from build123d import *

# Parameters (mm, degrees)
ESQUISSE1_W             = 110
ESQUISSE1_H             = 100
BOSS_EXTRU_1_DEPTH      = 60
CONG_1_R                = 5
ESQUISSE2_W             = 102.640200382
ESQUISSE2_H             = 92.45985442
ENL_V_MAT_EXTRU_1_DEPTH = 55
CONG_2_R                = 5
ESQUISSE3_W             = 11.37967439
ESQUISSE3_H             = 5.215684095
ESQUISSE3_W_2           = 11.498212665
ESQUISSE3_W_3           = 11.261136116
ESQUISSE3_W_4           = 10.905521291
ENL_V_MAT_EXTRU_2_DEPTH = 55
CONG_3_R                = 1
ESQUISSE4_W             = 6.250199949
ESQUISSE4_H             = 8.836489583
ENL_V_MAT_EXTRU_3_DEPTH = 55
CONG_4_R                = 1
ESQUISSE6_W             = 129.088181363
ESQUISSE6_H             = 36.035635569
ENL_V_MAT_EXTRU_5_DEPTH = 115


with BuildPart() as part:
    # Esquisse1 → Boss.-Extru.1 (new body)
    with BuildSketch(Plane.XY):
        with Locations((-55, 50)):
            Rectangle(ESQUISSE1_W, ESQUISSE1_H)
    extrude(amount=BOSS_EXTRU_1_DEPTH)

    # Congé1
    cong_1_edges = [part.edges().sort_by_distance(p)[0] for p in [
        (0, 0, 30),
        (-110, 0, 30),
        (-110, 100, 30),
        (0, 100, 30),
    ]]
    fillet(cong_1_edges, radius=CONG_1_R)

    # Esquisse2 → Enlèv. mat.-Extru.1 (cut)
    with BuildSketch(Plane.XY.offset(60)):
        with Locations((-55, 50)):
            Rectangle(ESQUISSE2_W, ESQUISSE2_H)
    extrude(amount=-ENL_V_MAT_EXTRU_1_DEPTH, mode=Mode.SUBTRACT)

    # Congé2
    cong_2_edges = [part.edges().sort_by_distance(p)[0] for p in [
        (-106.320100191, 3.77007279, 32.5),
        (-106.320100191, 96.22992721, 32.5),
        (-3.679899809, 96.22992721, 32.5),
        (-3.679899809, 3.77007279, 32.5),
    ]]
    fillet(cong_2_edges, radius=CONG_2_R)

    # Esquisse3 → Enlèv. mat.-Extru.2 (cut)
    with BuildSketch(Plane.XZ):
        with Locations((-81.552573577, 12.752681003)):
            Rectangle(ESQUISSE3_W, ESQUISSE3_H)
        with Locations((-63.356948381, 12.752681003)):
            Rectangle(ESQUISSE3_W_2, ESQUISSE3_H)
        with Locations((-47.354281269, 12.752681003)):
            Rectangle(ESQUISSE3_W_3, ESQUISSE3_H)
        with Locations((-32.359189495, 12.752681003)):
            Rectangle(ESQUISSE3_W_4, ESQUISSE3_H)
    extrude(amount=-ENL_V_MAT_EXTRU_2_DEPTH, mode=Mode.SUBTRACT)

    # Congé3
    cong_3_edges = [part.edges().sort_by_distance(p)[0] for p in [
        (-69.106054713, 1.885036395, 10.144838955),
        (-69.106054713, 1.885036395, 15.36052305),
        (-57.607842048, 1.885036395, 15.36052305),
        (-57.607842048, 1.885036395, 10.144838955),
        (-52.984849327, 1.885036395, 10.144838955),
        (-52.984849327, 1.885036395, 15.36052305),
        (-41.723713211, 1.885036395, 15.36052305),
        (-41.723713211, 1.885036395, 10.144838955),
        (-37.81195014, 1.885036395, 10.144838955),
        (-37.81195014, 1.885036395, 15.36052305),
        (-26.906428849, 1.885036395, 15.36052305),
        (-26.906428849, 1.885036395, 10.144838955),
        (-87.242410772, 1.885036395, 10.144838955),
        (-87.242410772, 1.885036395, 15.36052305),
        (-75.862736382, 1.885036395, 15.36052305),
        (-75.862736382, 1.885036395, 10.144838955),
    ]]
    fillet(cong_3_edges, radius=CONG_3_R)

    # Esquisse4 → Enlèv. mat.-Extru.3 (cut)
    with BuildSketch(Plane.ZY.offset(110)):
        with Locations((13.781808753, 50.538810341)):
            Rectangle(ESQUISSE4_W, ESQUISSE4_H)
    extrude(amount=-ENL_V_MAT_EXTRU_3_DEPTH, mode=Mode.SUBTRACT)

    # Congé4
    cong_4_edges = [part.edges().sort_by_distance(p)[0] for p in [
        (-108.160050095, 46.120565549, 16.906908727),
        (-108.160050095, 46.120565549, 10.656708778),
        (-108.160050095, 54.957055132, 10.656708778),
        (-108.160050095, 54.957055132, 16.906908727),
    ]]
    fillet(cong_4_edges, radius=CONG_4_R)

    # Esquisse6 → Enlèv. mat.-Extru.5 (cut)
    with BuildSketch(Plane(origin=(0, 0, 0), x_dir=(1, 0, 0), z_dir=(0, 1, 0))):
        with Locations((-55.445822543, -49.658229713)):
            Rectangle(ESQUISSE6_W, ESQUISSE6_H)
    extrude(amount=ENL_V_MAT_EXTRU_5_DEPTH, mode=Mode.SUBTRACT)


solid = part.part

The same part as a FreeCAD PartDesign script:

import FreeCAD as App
import Part
import Sketcher
Q = App.Units.Quantity


def edges_at(feature, points):
    """Names of the edges that pass closest to the given points."""
    edges = feature.Shape.Edges
    near = lambda p: min(range(len(edges)), key=lambda i: edges[i].distToShape(Part.Vertex(*p))[0])
    return sorted({f"Edge{near(p) + 1}" for p in points})


def add_polygon(sketch, points):
    """Adds a closed chain of lines whose ends are joined by coincident constraints."""
    first, n = sketch.GeometryCount, len(points)
    for a, b in zip(points, points[1:] + points[:1]):
        sketch.addGeometry(Part.LineSegment(App.Vector(*a, 0), App.Vector(*b, 0)), False)
    for i in range(n):
        sketch.addConstraint(Sketcher.Constraint("Coincident", first + i, 2, first + (i + 1) % n, 1))

doc = App.newDocument("Part")
body = doc.addObject("PartDesign::Body", "Body")

# Sketch on XY plane
sketch1 = body.newObject("Sketcher::SketchObject", "Sketch")
sketch1.AttachmentSupport = (doc.getObject("XY_Plane"), [""])
sketch1.MapMode = "FlatFace"
add_polygon(sketch1, [(-110, 100), (-110, 0), (0, 0), (0, 100)])  # lines 0-3
sketch1.addConstraint(Sketcher.Constraint("Vertical", 0))
sketch1.addConstraint(Sketcher.Constraint("Horizontal", 1))
sketch1.addConstraint(Sketcher.Constraint("Vertical", 2))
sketch1.addConstraint(Sketcher.Constraint("Horizontal", 3))
sketch1.addConstraint(Sketcher.Constraint("Coincident", 1, 2, -1, 1))
sketch1.addConstraint(Sketcher.Constraint("DistanceX", 1, 1, 1, 2, Q("110 mm")))
sketch1.addConstraint(Sketcher.Constraint("DistanceY", 0, 2, 0, 1, Q("100 mm")))
pad1 = body.newObject("PartDesign::Pad", "Pad")
pad1.Profile = sketch1
pad1.Length = 60
doc.recompute()

fillet = body.newObject("PartDesign::Fillet", "Fillet")
fillet.Base = (pad1, edges_at(pad1, [
    (0, 0, 30),
    (-110, 0, 30),
    (-110, 100, 30),
    (0, 100, 30),
]))
fillet.Radius = 5

# Sketch on XY plane
sketch2 = body.newObject("Sketcher::SketchObject", "Sketch001")
sketch2.AttachmentSupport = (doc.getObject("XY_Plane"), [""])
sketch2.MapMode = "FlatFace"
sketch2.AttachmentOffset = App.Placement(App.Vector(0, 0, 60), App.Rotation())
add_polygon(sketch2, [(-106, 96), (-106, 4), (-4, 4), (-4, 96)])  # lines 0-3
sketch2.addConstraint(Sketcher.Constraint("Vertical", 0))
sketch2.addConstraint(Sketcher.Constraint("Horizontal", 1))
sketch2.addConstraint(Sketcher.Constraint("Vertical", 2))
sketch2.addConstraint(Sketcher.Constraint("Horizontal", 3))
sketch2.addConstraint(Sketcher.Constraint("DistanceX", 1, 1, 1, 2, Q("102.6402 mm")))
sketch2.addConstraint(Sketcher.Constraint("DistanceX", 0, 2, -1, 1, Q("106.3201 mm")))
sketch2.addConstraint(Sketcher.Constraint("DistanceY", 0, 2, 0, 1, Q("92.459854 mm")))
sketch2.addConstraint(Sketcher.Constraint("DistanceY", -1, 1, 0, 2, Q("3.770073 mm")))
pocket1 = body.newObject("PartDesign::Pocket", "Pocket")
pocket1.Profile = sketch2
pocket1.Length = 55
doc.recompute()

fillet2 = body.newObject("PartDesign::Fillet", "Fillet001")
fillet2.Base = (pocket1, edges_at(pocket1, [
    (-106.32, 3.77, 32.5),
    (-106.32, 96.23, 32.5),
    (-3.68, 96.23, 32.5),
    (-3.68, 3.77, 32.5),
]))
fillet2.Radius = 5

# Sketch on XZ plane
sketch3 = body.newObject("Sketcher::SketchObject", "Sketch002")
sketch3.AttachmentSupport = (doc.getObject("XZ_Plane"), [""])
sketch3.MapMode = "FlatFace"
add_polygon(sketch3, [(-87, 15), (-87, 10), (-76, 10), (-76, 15)])  # lines 0-3
add_polygon(sketch3, [(-69, 15), (-69, 10), (-58, 10), (-58, 15)])  # lines 4-7
add_polygon(sketch3, [(-53, 15), (-53, 10), (-42, 10), (-42, 15)])  # lines 8-11
add_polygon(sketch3, [(-38, 15), (-38, 10), (-27, 10), (-27, 15)])  # lines 12-15
sketch3.addConstraint(Sketcher.Constraint("Vertical", 0))
sketch3.addConstraint(Sketcher.Constraint("Horizontal", 1))
sketch3.addConstraint(Sketcher.Constraint("Vertical", 2))
sketch3.addConstraint(Sketcher.Constraint("Horizontal", 3))
sketch3.addConstraint(Sketcher.Constraint("Vertical", 4))
sketch3.addConstraint(Sketcher.Constraint("Horizontal", 5))
sketch3.addConstraint(Sketcher.Constraint("Vertical", 6))
sketch3.addConstraint(Sketcher.Constraint("Horizontal", 7))
sketch3.addConstraint(Sketcher.Constraint("Vertical", 8))
sketch3.addConstraint(Sketcher.Constraint("Horizontal", 9))
sketch3.addConstraint(Sketcher.Constraint("Vertical", 10))
sketch3.addConstraint(Sketcher.Constraint("Horizontal", 11))
sketch3.addConstraint(Sketcher.Constraint("Vertical", 12))
sketch3.addConstraint(Sketcher.Constraint("Horizontal", 13))
sketch3.addConstraint(Sketcher.Constraint("Vertical", 14))
sketch3.addConstraint(Sketcher.Constraint("Horizontal", 15))
sketch3.addConstraint(Sketcher.Constraint("Horizontal", 1, 2, 4, 2))
sketch3.addConstraint(Sketcher.Constraint("Horizontal", 3, 2, 6, 2))
sketch3.addConstraint(Sketcher.Constraint("Horizontal", 5, 2, 8, 2))
sketch3.addConstraint(Sketcher.Constraint("Horizontal", 7, 2, 10, 2))
sketch3.addConstraint(Sketcher.Constraint("Horizontal", 9, 2, 12, 2))
sketch3.addConstraint(Sketcher.Constraint("Horizontal", 11, 2, 14, 2))
sketch3.addConstraint(Sketcher.Constraint("DistanceX", 13, 1, 13, 2, Q("10.905521 mm")))
sketch3.addConstraint(Sketcher.Constraint("DistanceX", 8, 2, 12, 2, Q("15.172899 mm")))
sketch3.addConstraint(Sketcher.Constraint("DistanceX", 1, 1, 1, 2, Q("11.379674 mm")))
sketch3.addConstraint(Sketcher.Constraint("DistanceX", 5, 1, 5, 2, Q("11.498213 mm")))
sketch3.addConstraint(Sketcher.Constraint("DistanceX", 9, 1, 9, 2, Q("11.261136 mm")))
sketch3.addConstraint(Sketcher.Constraint("DistanceY", 0, 2, 0, 1, Q("5.215684 mm")))
sketch3.addConstraint(Sketcher.Constraint("DistanceX", 0, 2, -1, 1, Q("87.242411 mm")))
sketch3.addConstraint(Sketcher.Constraint("DistanceY", -1, 1, 0, 2, Q("10.144839 mm")))
sketch3.addConstraint(Sketcher.Constraint("DistanceX", 8, 2, -1, 1, Q("52.984849 mm")))
sketch3.addConstraint(Sketcher.Constraint("DistanceX", 1, 2, 4, 2, Q("6.756682 mm")))
pocket2 = body.newObject("PartDesign::Pocket", "Pocket001")
pocket2.Profile = sketch3
pocket2.Length = 55
doc.recompute()

fillet3 = body.newObject("PartDesign::Fillet", "Fillet002")
fillet3.Base = (pocket2, edges_at(pocket2, [
    (-69.106, 1.885, 10.145),
    (-69.106, 1.885, 15.361),
    (-57.608, 1.885, 15.361),
    (-57.608, 1.885, 10.145),
    (-52.985, 1.885, 10.145),
    (-52.985, 1.885, 15.361),
    (-41.724, 1.885, 15.361),
    (-41.724, 1.885, 10.145),
    (-37.812, 1.885, 10.145),
    (-37.812, 1.885, 15.361),
    (-26.906, 1.885, 15.361),
    (-26.906, 1.885, 10.145),
    (-87.242, 1.885, 10.145),
    (-87.242, 1.885, 15.361),
    (-75.863, 1.885, 15.361),
    (-75.863, 1.885, 10.145),
]))
fillet3.Radius = 1

# Sketch on YZ plane
sketch4 = body.newObject("Sketcher::SketchObject", "Sketch003")
sketch4.AttachmentSupport = (doc.getObject("YZ_Plane"), [""])
sketch4.MapMode = "FlatFace"
sketch4.AttachmentOffset = App.Placement(App.Vector(0, 0, -110), App.Rotation())
add_polygon(sketch4, [(55, 11), (46, 11), (46, 17), (55, 17)])  # lines 0-3
sketch4.addConstraint(Sketcher.Constraint("Horizontal", 0))
sketch4.addConstraint(Sketcher.Constraint("Vertical", 1))
sketch4.addConstraint(Sketcher.Constraint("Horizontal", 2))
sketch4.addConstraint(Sketcher.Constraint("Vertical", 3))
sketch4.addConstraint(Sketcher.Constraint("DistanceY", 1, 1, 1, 2, Q("6.2502 mm")))
sketch4.addConstraint(Sketcher.Constraint("DistanceX", 0, 2, 0, 1, Q("8.83649 mm")))
sketch4.addConstraint(Sketcher.Constraint("DistanceY", -1, 1, 0, 2, Q("10.656709 mm")))
sketch4.addConstraint(Sketcher.Constraint("DistanceX", -1, 1, 0, 2, Q("46.120566 mm")))
pocket3 = body.newObject("PartDesign::Pocket", "Pocket002")
pocket3.Profile = sketch4
pocket3.Length = 55
pocket3.Reversed = True
doc.recompute()

fillet4 = body.newObject("PartDesign::Fillet", "Fillet003")
fillet4.Base = (pocket3, edges_at(pocket3, [
    (-108.16, 46.121, 16.907),
    (-108.16, 46.121, 10.657),
    (-108.16, 54.957, 10.657),
    (-108.16, 54.957, 16.907),
]))
fillet4.Radius = 1

# Sketch on XZ plane
sketch5 = body.newObject("Sketcher::SketchObject", "Sketch004")
sketch5.AttachmentSupport = (doc.getObject("XZ_Plane"), [""])
sketch5.MapMode = "FlatFace"
add_polygon(sketch5, [(-120, 32), (-120, 68), (9, 68), (9, 32)])  # lines 0-3
sketch5.addConstraint(Sketcher.Constraint("Vertical", 0))
sketch5.addConstraint(Sketcher.Constraint("Horizontal", 1))
sketch5.addConstraint(Sketcher.Constraint("Vertical", 2))
sketch5.addConstraint(Sketcher.Constraint("Horizontal", 3))
sketch5.addConstraint(Sketcher.Constraint("DistanceX", 1, 1, 1, 2, Q("129.088181 mm")))
sketch5.addConstraint(Sketcher.Constraint("DistanceY", 0, 1, 0, 2, Q("36.035636 mm")))
sketch5.addConstraint(Sketcher.Constraint("DistanceX", -1, 1, 1, 2, Q("9.098268 mm")))
sketch5.addConstraint(Sketcher.Constraint("DistanceY", -1, 1, 2, 2, Q("31.640412 mm")))
pocket4 = body.newObject("PartDesign::Pocket", "Pocket003")
pocket4.Profile = sketch5
pocket4.Length = 115

doc.recompute()
